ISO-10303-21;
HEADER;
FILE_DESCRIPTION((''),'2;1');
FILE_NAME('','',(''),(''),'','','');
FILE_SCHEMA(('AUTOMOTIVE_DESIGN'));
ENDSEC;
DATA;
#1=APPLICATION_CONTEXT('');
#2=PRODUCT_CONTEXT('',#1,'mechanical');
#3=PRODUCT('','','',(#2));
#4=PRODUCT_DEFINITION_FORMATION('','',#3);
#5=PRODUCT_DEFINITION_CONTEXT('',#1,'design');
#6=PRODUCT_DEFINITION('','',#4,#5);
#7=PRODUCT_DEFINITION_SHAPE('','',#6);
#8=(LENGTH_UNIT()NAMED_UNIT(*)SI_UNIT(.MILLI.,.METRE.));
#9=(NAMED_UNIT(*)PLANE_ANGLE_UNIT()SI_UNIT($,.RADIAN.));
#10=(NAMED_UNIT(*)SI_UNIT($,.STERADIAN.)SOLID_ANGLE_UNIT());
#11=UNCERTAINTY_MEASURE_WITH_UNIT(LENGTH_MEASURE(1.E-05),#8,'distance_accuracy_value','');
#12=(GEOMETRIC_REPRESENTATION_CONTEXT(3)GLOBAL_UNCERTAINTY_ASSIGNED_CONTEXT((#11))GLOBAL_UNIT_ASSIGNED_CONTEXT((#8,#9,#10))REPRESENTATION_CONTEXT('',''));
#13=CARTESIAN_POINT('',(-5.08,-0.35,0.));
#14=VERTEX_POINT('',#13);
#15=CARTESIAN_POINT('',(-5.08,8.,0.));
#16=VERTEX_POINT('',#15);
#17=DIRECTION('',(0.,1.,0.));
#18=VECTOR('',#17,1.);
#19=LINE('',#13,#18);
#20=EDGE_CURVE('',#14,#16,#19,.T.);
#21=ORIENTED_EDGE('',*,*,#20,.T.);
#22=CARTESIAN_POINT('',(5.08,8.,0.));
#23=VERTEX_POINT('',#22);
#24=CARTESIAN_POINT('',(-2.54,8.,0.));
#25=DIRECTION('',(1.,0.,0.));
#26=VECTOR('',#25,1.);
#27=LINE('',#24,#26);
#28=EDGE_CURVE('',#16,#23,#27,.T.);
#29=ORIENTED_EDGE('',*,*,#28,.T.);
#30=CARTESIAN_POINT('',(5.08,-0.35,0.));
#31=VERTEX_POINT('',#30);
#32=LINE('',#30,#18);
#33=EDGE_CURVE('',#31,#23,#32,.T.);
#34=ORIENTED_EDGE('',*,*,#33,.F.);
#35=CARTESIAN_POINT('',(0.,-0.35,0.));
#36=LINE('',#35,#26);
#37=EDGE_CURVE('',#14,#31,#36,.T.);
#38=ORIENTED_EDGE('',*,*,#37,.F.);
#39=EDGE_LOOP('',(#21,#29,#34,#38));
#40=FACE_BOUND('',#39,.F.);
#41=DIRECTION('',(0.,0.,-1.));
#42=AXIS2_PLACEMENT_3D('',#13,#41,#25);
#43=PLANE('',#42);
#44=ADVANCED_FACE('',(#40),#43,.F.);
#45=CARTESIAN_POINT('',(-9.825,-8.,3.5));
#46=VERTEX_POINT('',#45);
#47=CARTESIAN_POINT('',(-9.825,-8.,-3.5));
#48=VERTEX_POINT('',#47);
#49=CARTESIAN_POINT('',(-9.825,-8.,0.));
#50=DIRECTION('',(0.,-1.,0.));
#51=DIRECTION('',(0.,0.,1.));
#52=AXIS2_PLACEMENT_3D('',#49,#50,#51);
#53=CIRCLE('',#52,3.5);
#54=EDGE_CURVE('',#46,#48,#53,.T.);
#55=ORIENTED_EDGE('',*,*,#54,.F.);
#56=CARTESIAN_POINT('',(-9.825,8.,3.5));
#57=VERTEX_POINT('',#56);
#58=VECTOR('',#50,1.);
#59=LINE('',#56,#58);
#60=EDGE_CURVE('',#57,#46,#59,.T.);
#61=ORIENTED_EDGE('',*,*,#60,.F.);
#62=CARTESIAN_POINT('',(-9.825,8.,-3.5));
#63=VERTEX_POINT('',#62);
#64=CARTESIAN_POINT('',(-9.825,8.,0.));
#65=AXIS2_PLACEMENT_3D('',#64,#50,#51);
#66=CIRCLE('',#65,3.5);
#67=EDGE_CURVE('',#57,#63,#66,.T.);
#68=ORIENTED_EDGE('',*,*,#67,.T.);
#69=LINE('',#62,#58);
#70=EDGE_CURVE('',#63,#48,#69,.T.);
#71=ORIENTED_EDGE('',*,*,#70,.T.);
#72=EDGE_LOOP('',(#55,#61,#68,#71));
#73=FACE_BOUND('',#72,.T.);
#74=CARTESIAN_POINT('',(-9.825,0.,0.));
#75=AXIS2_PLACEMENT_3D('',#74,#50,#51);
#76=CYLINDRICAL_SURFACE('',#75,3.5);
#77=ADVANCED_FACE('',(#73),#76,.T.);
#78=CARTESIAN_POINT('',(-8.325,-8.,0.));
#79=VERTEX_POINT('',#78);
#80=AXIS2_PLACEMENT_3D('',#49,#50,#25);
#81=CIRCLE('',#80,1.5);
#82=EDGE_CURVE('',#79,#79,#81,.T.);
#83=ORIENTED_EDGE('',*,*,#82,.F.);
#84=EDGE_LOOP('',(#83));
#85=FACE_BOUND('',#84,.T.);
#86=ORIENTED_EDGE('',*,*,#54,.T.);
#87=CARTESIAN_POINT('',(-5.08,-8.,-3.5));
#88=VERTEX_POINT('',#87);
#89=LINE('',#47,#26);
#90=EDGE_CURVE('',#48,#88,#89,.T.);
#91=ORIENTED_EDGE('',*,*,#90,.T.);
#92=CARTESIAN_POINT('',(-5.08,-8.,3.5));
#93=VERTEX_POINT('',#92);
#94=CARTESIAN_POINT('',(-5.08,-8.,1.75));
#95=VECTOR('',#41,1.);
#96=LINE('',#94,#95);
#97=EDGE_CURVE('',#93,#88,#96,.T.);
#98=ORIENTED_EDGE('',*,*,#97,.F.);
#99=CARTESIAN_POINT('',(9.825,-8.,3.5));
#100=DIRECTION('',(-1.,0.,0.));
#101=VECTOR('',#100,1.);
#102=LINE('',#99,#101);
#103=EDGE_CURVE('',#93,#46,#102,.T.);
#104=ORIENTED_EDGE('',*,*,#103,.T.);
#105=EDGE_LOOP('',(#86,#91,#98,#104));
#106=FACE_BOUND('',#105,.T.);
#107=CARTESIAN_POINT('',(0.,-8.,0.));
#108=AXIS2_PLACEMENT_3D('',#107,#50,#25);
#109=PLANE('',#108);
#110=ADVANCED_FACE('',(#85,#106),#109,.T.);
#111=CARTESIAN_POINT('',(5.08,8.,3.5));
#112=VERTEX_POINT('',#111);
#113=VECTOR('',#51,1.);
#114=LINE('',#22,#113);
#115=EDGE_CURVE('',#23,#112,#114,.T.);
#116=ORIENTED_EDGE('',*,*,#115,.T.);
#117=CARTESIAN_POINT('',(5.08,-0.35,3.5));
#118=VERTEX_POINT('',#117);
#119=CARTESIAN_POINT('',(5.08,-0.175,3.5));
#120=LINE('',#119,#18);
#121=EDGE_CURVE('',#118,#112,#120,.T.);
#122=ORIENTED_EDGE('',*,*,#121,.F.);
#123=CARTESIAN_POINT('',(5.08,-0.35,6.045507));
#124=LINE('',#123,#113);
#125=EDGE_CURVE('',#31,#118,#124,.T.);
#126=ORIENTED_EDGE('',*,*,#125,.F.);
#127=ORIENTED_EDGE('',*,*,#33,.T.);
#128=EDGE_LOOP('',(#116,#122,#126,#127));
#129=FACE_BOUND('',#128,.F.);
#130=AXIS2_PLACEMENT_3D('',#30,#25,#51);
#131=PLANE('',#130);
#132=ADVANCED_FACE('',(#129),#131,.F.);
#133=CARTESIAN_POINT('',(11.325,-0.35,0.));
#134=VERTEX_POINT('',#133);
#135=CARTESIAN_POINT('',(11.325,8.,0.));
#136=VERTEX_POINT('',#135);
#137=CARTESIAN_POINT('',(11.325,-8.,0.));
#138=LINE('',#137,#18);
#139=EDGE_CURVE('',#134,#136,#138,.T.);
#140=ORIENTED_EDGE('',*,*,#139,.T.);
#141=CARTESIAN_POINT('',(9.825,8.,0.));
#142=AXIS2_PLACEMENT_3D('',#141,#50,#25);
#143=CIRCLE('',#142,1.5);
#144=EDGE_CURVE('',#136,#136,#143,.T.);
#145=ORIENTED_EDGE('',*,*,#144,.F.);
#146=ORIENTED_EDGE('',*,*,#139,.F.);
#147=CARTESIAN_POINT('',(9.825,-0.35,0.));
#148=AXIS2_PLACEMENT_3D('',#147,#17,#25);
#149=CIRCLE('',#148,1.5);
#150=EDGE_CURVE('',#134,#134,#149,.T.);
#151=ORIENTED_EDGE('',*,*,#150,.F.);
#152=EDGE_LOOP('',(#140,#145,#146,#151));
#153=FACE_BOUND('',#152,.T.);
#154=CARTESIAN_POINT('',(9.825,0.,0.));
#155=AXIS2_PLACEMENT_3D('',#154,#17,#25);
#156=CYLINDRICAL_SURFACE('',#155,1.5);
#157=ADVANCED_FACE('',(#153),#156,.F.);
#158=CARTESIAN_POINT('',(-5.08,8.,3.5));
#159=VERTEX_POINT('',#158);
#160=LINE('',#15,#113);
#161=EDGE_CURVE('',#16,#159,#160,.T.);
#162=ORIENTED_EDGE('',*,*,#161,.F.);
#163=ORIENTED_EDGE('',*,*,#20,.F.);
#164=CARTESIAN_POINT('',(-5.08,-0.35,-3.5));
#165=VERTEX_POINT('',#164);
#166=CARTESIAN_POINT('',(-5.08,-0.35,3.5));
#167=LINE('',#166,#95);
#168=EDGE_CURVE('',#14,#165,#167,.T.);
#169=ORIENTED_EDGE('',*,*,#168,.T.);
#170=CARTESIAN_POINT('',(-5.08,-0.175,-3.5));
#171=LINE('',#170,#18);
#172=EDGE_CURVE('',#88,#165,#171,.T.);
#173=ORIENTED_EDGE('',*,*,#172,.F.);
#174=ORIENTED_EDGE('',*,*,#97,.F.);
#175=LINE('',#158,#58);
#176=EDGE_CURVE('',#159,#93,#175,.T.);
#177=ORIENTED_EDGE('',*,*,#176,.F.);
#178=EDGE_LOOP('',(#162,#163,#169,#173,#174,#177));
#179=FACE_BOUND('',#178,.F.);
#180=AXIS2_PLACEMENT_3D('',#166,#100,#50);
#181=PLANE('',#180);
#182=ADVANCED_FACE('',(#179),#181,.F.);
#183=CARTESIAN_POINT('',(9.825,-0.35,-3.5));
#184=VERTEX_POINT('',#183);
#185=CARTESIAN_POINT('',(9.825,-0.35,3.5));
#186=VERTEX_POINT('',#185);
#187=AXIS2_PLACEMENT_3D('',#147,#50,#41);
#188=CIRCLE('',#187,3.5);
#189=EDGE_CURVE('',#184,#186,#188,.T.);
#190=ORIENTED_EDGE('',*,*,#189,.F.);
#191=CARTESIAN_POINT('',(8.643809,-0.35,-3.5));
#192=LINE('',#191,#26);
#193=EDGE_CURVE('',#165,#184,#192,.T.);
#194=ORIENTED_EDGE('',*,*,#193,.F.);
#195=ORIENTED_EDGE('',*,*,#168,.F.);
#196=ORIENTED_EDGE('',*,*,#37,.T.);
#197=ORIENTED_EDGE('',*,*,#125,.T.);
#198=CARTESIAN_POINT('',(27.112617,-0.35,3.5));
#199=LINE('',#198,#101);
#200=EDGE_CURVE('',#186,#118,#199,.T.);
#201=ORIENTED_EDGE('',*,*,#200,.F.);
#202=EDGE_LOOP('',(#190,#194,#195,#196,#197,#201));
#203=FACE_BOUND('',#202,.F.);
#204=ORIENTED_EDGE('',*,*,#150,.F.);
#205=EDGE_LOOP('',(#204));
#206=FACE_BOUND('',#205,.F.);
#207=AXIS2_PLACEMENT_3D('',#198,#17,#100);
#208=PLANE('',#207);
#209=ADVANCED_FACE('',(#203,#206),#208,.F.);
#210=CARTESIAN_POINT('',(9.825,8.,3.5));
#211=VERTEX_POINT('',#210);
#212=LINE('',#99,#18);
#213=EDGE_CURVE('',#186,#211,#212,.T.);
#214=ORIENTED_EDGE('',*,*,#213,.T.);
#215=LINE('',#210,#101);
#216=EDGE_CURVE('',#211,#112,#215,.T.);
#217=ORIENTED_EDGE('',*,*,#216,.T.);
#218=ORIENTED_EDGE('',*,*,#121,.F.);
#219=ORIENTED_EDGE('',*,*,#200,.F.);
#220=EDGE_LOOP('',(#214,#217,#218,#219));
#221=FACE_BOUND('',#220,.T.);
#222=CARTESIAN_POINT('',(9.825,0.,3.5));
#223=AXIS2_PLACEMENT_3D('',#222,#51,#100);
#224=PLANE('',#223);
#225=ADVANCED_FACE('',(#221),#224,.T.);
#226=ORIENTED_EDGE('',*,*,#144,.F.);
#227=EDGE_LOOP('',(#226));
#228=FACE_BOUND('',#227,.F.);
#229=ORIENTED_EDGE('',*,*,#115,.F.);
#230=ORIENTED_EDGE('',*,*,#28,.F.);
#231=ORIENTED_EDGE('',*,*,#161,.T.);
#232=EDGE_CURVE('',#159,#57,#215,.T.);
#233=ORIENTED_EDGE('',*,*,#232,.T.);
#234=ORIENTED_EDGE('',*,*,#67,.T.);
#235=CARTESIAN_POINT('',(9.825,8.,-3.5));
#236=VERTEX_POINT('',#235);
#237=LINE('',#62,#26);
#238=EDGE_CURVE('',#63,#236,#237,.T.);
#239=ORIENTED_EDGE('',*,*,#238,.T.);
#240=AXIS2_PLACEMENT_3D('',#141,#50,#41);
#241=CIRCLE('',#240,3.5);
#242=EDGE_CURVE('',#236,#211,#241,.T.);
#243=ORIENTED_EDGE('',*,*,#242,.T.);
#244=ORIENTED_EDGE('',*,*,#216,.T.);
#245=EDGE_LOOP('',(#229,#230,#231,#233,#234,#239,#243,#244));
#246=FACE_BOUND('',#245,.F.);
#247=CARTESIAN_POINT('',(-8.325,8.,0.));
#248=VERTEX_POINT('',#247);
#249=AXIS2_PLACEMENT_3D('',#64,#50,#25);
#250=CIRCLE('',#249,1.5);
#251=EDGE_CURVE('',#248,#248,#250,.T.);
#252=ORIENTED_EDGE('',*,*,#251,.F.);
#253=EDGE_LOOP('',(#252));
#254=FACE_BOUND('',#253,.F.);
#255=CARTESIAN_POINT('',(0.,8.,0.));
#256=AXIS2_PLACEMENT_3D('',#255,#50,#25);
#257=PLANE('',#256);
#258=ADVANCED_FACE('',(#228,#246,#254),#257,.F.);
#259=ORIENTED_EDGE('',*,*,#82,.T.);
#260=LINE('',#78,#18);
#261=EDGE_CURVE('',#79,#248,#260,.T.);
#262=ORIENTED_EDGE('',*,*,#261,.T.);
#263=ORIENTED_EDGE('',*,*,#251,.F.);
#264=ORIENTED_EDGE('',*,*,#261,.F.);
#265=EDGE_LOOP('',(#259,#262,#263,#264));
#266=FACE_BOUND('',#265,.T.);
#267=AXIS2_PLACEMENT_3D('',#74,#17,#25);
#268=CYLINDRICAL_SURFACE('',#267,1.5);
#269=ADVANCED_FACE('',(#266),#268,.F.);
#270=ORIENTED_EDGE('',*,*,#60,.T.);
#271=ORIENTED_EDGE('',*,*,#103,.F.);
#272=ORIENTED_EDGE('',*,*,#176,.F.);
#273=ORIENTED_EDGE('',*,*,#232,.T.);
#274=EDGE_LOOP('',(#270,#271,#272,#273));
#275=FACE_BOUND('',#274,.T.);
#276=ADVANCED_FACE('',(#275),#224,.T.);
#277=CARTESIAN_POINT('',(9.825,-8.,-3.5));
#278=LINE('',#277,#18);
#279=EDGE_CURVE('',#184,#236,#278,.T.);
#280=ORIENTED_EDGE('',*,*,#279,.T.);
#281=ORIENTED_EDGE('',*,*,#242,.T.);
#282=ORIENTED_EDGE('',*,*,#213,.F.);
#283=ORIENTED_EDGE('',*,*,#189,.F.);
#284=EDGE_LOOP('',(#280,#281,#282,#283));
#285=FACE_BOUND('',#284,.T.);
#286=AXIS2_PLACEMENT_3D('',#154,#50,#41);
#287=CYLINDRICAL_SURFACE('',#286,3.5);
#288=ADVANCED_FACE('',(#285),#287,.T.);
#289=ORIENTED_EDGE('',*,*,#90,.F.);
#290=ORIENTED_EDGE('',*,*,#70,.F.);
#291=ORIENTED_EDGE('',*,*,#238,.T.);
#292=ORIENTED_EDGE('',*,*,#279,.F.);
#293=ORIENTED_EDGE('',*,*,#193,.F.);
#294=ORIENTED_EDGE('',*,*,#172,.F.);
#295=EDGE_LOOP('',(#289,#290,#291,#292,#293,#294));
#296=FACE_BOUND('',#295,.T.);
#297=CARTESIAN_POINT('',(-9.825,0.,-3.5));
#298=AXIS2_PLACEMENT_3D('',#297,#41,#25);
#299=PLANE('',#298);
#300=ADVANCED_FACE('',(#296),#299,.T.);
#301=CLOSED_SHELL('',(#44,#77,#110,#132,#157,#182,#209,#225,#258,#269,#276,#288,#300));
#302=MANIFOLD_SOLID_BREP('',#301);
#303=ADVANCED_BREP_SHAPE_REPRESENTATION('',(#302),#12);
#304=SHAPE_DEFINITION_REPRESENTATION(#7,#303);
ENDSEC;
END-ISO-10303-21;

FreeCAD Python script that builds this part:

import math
import FreeCAD as App
import Part
import Sketcher
from FreeCAD import Vector
Q = App.Units.Quantity


def add_polygon(sketch, points):
    """Adds a closed chain of lines whose ends are joined by coincident constraints."""
    first, n = sketch.GeometryCount, len(points)
    for a, b in zip(points, points[1:] + points[:1]):
        sketch.addGeometry(Part.LineSegment(App.Vector(*a, 0), App.Vector(*b, 0)), False)
    for i in range(n):
        sketch.addConstraint(Sketcher.Constraint("Coincident", first + i, 2, first + (i + 1) % n, 1))

doc = App.newDocument("Part")
body = doc.addObject("PartDesign::Body", "Body")

# Sketch on XZ plane
sketch1 = body.newObject("Sketcher::SketchObject", "Sketch")
sketch1.AttachmentSupport = (doc.getObject("XZ_Plane"), [""])
sketch1.MapMode = "FlatFace"
sketch1.addGeometry([
    Part.LineSegment(Vector(9.8, 3.5, 0), Vector(-9.8, 3.5, 0)),  # 0
    Part.ArcOfCircle(Part.Circle(Vector(-9.8, 0, 0), Vector(0, 0, 1), 3.5), math.radians(90), math.radians(270)),  # 1
    Part.LineSegment(Vector(-9.8, -3.5, 0), Vector(9.8, -3.5, 0)),  # 2
    Part.ArcOfCircle(Part.Circle(Vector(9.8, 0, 0), Vector(0, 0, 1), 3.5), math.radians(-90), math.radians(90)),  # 3
    Part.Circle(Vector(-9.8, 0, 0), Vector(0, 0, 1), 1.5),  # 4
    Part.Circle(Vector(9.8, 0, 0), Vector(0, 0, 1), 1.5),  # 5
], False)
sketch1.addConstraint([
    Sketcher.Constraint("Tangent", 0, 2, 1, 1),
    Sketcher.Constraint("Tangent", 1, 2, 2, 1),
    Sketcher.Constraint("Tangent", 2, 2, 3, 1),
    Sketcher.Constraint("Tangent", 3, 2, 0, 1),
    Sketcher.Constraint("Horizontal", 0),
    Sketcher.Constraint("Horizontal", 2),
    Sketcher.Constraint("Coincident", 4, 3, 1, 3),
    Sketcher.Constraint("Coincident", 5, 3, 3, 3),
    Sketcher.Constraint("Equal", 4, 5),
    Sketcher.Constraint("Symmetric", 1, 3, 3, 3, -1, 1),
    Sketcher.Constraint("Diameter", 4, Q("3 mm")),
    Sketcher.Constraint("Radius", 1, Q("3.5 mm")),
    Sketcher.Constraint("DistanceX", 0, 2, 0, 1, Q("19.65 mm")),
])
pad1 = body.newObject("PartDesign::Pad", "Pad")
pad1.Profile = sketch1
pad1.Length = 16
pad1.Midplane = True

# Sketch on XY plane
sketch2 = body.newObject("Sketcher::SketchObject", "Sketch001")
sketch2.AttachmentSupport = (doc.getObject("XY_Plane"), [""])
sketch2.MapMode = "FlatFace"
sketch2.AttachmentOffset = App.Placement(Vector(0, 0, 3.5), App.Rotation())
add_polygon(sketch2, [(27, 0), (-5, 0), (-5, -18), (27, -18)])  # lines 0-3
sketch2.addConstraint([
    Sketcher.Constraint("Horizontal", 0),
    Sketcher.Constraint("Vertical", 1),
    Sketcher.Constraint("Horizontal", 2),
    Sketcher.Constraint("Vertical", 3),
    Sketcher.Constraint("DistanceX", 0, 2, -1, 1, Q("5.08 mm")),
    Sketcher.Constraint("DistanceY", 0, 2, -1, 1, Q("0.35 mm")),
    Sketcher.Constraint("DistanceY", 1, 2, 1, 1, Q("17.334488 mm")),
    Sketcher.Constraint("DistanceX", 0, 2, 0, 1, Q("32.192617 mm")),
])
pocket1 = body.newObject("PartDesign::Pocket", "Pocket")
pocket1.Profile = sketch2
pocket1.Type = "ThroughAll"

# Sketch on XZ plane
sketch3 = body.newObject("Sketcher::SketchObject", "Sketch002")
sketch3.AttachmentSupport = (doc.getObject("XZ_Plane"), [""])
sketch3.MapMode = "FlatFace"
sketch3.AttachmentOffset = App.Placement(Vector(0, 0, 0.35), App.Rotation())
add_polygon(sketch3, [(-5, 12), (-5, 0), (5, 0), (5, 12)])  # lines 0-3
sketch3.addConstraint([
    Sketcher.Constraint("Vertical", 0),
    Sketcher.Constraint("Horizontal", 1),
    Sketcher.Constraint("Vertical", 2),
    Sketcher.Constraint("Horizontal", 3),
    Sketcher.Constraint("Symmetric", 0, 2, 1, 2, -1, 1),
    Sketcher.Constraint("DistanceX", 1, 1, 1, 2, Q("10.16 mm")),
    Sketcher.Constraint("DistanceY", 0, 2, 0, 1, Q("12.091013 mm")),
])
pocket2 = body.newObject("PartDesign::Pocket", "Pocket001")
pocket2.Profile = sketch3
pocket2.Type = "ThroughAll"

doc.recompute()
